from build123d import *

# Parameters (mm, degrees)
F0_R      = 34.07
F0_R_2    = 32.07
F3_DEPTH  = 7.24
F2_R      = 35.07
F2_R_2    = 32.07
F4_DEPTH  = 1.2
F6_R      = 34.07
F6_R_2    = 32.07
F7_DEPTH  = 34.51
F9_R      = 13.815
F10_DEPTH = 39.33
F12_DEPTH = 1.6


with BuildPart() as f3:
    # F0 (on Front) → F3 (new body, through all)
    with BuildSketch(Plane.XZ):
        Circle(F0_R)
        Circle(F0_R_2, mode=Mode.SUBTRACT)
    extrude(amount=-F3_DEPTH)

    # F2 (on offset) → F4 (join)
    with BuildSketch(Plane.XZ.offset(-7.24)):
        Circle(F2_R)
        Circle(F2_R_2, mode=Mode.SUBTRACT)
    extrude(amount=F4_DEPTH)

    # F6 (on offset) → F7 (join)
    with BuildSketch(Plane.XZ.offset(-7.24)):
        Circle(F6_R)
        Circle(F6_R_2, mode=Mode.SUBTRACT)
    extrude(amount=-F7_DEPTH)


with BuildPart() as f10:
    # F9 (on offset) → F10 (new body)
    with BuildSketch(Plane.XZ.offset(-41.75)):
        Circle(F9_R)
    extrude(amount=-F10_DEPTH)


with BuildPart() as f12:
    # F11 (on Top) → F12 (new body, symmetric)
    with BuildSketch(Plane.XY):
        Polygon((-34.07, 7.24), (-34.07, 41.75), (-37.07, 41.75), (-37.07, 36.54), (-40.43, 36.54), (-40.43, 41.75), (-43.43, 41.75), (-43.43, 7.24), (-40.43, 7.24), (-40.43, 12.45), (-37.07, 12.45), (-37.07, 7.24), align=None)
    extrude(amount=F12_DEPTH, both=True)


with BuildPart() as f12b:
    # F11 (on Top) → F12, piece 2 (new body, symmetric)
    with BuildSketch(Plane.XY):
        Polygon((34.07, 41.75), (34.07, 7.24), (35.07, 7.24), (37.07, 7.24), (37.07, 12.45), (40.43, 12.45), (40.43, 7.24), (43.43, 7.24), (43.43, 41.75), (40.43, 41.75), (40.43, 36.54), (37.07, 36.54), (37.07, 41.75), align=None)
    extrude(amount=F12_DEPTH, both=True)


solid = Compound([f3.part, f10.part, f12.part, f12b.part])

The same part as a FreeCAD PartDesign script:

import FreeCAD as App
import Part
import Sketcher


def add_polygon(sketch, points):
    """Adds a closed chain of lines whose ends are joined by coincident constraints."""
    first, n = sketch.GeometryCount, len(points)
    for a, b in zip(points, points[1:] + points[:1]):
        sketch.addGeometry(Part.LineSegment(App.Vector(*a, 0), App.Vector(*b, 0)), False)
    for i in range(n):
        sketch.addConstraint(Sketcher.Constraint("Coincident", first + i, 2, first + (i + 1) % n, 1))

doc = App.newDocument("Part")
params = doc.addObject("Spreadsheet::Sheet", "Params")
for row, (alias, value) in enumerate([
    ("sketch1_diameter", "68.14 mm"),
    ("sketch1_diameter2", "64.14 mm"),
    ("pad1_length", "7.24 mm"),
    ("sketch2_diameter", "70.14 mm"),
    ("sketch2_diameter2", "64.14 mm"),
    ("pad2_length", "1.2 mm"),
    ("sketch3_diameter", "68.14 mm"),
    ("sketch3_diameter2", "64.14 mm"),
    ("pad3_length", "34.51 mm"),
    ("sketch4_diameter", "27.63 mm"),
    ("pad4_length", "39.33 mm"),
    ("sketch5_width", "3 mm"),
    ("sketch5_width2", "3.36 mm"),
    ("sketch5_height", "34.51 mm"),
    ("sketch5_height2", "5.21 mm"),
    ("pad5_length", "3.2 mm"),
    ("sketch6_width", "3 mm"),
    ("sketch6_width2", "3.36 mm"),
    ("sketch6_height", "34.51 mm"),
    ("sketch6_height2", "5.21 mm"),
    ("pad6_length", "3.2 mm"),
], start=1):
    params.set(f"A{row}", alias)
    params.set(f"B{row}", "=" + value)
    params.setAlias(f"B{row}", alias)

body = doc.addObject("PartDesign::Body", "Body")

sketch1 = doc.addObject("Sketcher::SketchObject", "Sketch")
body.addObject(sketch1)
sketch1.AttachmentSupport = (doc.XZ_Plane, [""])
sketch1.MapMode = "FlatFace"
sketch1.addGeometry(Part.Circle(App.Vector(0, 0, 0), App.Vector(0, 0, 1), 34), False)
sketch1.addGeometry(Part.Circle(App.Vector(0, 0, 0), App.Vector(0, 0, 1), 32), False)
sketch1.addConstraint(Sketcher.Constraint("Coincident", 0, 3, -1, 1))
sketch1.addConstraint(Sketcher.Constraint("Coincident", 1, 3, -1, 1))
sketch1.addConstraint(Sketcher.Constraint("Diameter", 0, 68.14))
sketch1.addConstraint(Sketcher.Constraint("Diameter", 1, 64.14))
sketch1.setExpression("Constraints[2]", "Params.sketch1_diameter")
sketch1.setExpression("Constraints[3]", "Params.sketch1_diameter2")
pad1 = doc.addObject("PartDesign::Pad", "Pad")
body.addObject(pad1)
pad1.Profile = sketch1
pad1.setExpression("Length", "Params.pad1_length")
pad1.Reversed = True

sketch2 = doc.addObject("Sketcher::SketchObject", "Sketch001")
body.addObject(sketch2)
sketch2.AttachmentSupport = (doc.XZ_Plane, [""])
sketch2.MapMode = "FlatFace"
sketch2.AttachmentOffset = App.Placement(App.Vector(0, 0, -7.24), App.Rotation())
sketch2.addGeometry(Part.Circle(App.Vector(0, 0, 0), App.Vector(0, 0, 1), 35), False)
sketch2.addGeometry(Part.Circle(App.Vector(0, 0, 0), App.Vector(0, 0, 1), 32), False)
sketch2.addConstraint(Sketcher.Constraint("Coincident", 0, 3, -1, 1))
sketch2.addConstraint(Sketcher.Constraint("Coincident", 1, 3, -1, 1))
sketch2.addConstraint(Sketcher.Constraint("Diameter", 0, 70.14))
sketch2.addConstraint(Sketcher.Constraint("Diameter", 1, 64.14))
sketch2.setExpression("Constraints[2]", "Params.sketch2_diameter")
sketch2.setExpression("Constraints[3]", "Params.sketch2_diameter2")
pad2 = doc.addObject("PartDesign::Pad", "Pad001")
body.addObject(pad2)
pad2.Profile = sketch2
pad2.setExpression("Length", "Params.pad2_length")

sketch3 = doc.addObject("Sketcher::SketchObject", "Sketch002")
body.addObject(sketch3)
sketch3.AttachmentSupport = (doc.XZ_Plane, [""])
sketch3.MapMode = "FlatFace"
sketch3.AttachmentOffset = App.Placement(App.Vector(0, 0, -7.24), App.Rotation())
sketch3.addGeometry(Part.Circle(App.Vector(0, 0, 0), App.Vector(0, 0, 1), 34), False)
sketch3.addGeometry(Part.Circle(App.Vector(0, 0, 0), App.Vector(0, 0, 1), 32), False)
sketch3.addConstraint(Sketcher.Constraint("Coincident", 0, 3, -1, 1))
sketch3.addConstraint(Sketcher.Constraint("Coincident", 1, 3, -1, 1))
sketch3.addConstraint(Sketcher.Constraint("Diameter", 0, 68.14))
sketch3.addConstraint(Sketcher.Constraint("Diameter", 1, 64.14))
sketch3.setExpression("Constraints[2]", "Params.sketch3_diameter")
sketch3.setExpression("Constraints[3]", "Params.sketch3_diameter2")
pad3 = doc.addObject("PartDesign::Pad", "Pad002")
body.addObject(pad3)
pad3.Profile = sketch3
pad3.setExpression("Length", "Params.pad3_length")
pad3.Reversed = True
body2 = doc.addObject("PartDesign::Body", "Body001")

sketch4 = doc.addObject("Sketcher::SketchObject", "Sketch003")
body2.addObject(sketch4)
sketch4.AttachmentSupport = (doc.getObject("XZ_Plane001"), [""])
sketch4.MapMode = "FlatFace"
sketch4.AttachmentOffset = App.Placement(App.Vector(0, 0, -41.75), App.Rotation())
sketch4.addGeometry(Part.Circle(App.Vector(0, 0, 0), App.Vector(0, 0, 1), 14), False)
sketch4.addConstraint(Sketcher.Constraint("Coincident", 0, 3, -1, 1))
sketch4.addConstraint(Sketcher.Constraint("Diameter", 0, 27.63))
sketch4.setExpression("Constraints[1]", "Params.sketch4_diameter")
pad4 = doc.addObject("PartDesign::Pad", "Pad003")
body2.addObject(pad4)
pad4.Profile = sketch4
pad4.setExpression("Length", "Params.pad4_length")
pad4.Reversed = True
body3 = doc.addObject("PartDesign::Body", "Body002")

sketch5 = doc.addObject("Sketcher::SketchObject", "Sketch004")
body3.addObject(sketch5)
sketch5.AttachmentSupport = (doc.getObject("XY_Plane002"), [""])
sketch5.MapMode = "FlatFace"
add_polygon(sketch5, [(-34.1, 7.2), (-34.1, 41.8), (-37.1, 41.8), (-37.1, 36.5), (-40.4, 36.5), (-40.4, 41.8), (-43.4, 41.8), (-43.4, 7.2), (-40.4, 7.2), (-40.4, 12.4), (-37.1, 12.4), (-37.1, 7.2)])
sketch5.addConstraint(Sketcher.Constraint("Vertical", 0))
sketch5.addConstraint(Sketcher.Constraint("Horizontal", 1))
sketch5.addConstraint(Sketcher.Constraint("Vertical", 2))
sketch5.addConstraint(Sketcher.Constraint("Horizontal", 3))
sketch5.addConstraint(Sketcher.Constraint("Vertical", 4))
sketch5.addConstraint(Sketcher.Constraint("Horizontal", 5))
sketch5.addConstraint(Sketcher.Constraint("Vertical", 6))
sketch5.addConstraint(Sketcher.Constraint("Horizontal", 7))
sketch5.addConstraint(Sketcher.Constraint("Vertical", 8))
sketch5.addConstraint(Sketcher.Constraint("Horizontal", 9))
sketch5.addConstraint(Sketcher.Constraint("Vertical", 10))
sketch5.addConstraint(Sketcher.Constraint("Horizontal", 11))
sketch5.addConstraint(Sketcher.Constraint("Horizontal", 1, 2, 4, 2))
sketch5.addConstraint(Sketcher.Constraint("Horizontal", 7, 2, 10, 2))
sketch5.addConstraint(Sketcher.Constraint("Vertical", 4, 2, 7, 2))
sketch5.addConstraint(Sketcher.Constraint("Vertical", 2, 2, 9, 2))
sketch5.addConstraint(Sketcher.Constraint("Equal", 1, 5))
sketch5.addConstraint(Sketcher.Constraint("Equal", 4, 8))
sketch5.addConstraint(Sketcher.Constraint("DistanceX", 1, 2, 1, 1, 3.0))
sketch5.addConstraint(Sketcher.Constraint("DistanceX", 3, 2, 3, 1, 3.36))
sketch5.addConstraint(Sketcher.Constraint("DistanceY", 0, 1, 0, 2, 34.51))
sketch5.addConstraint(Sketcher.Constraint("DistanceY", 2, 2, 2, 1, 5.21))
sketch5.addConstraint(Sketcher.Constraint("DistanceX", 0, 2, -1, 1, 34.07))
sketch5.addConstraint(Sketcher.Constraint("DistanceY", -1, 1, 0, 2, 41.75))
sketch5.setExpression("Constraints[30]", "Params.sketch5_width")
sketch5.setExpression("Constraints[31]", "Params.sketch5_width2")
sketch5.setExpression("Constraints[32]", "Params.sketch5_height")
sketch5.setExpression("Constraints[33]", "Params.sketch5_height2")
pad5 = doc.addObject("PartDesign::Pad", "Pad004")
body3.addObject(pad5)
pad5.Profile = sketch5
pad5.setExpression("Length", "Params.pad5_length")
pad5.Midplane = True
body4 = doc.addObject("PartDesign::Body", "Body003")

sketch6 = doc.addObject("Sketcher::SketchObject", "Sketch005")
body4.addObject(sketch6)
sketch6.AttachmentSupport = (doc.getObject("XY_Plane003"), [""])
sketch6.MapMode = "FlatFace"
add_polygon(sketch6, [(34.1, 41.8), (34.1, 7.2), (37.1, 7.2), (37.1, 12.4), (40.4, 12.4), (40.4, 7.2), (43.4, 7.2), (43.4, 41.8), (40.4, 41.8), (40.4, 36.5), (37.1, 36.5), (37.1, 41.8)])
sketch6.addConstraint(Sketcher.Constraint("Vertical", 0))
sketch6.addConstraint(Sketcher.Constraint("Horizontal", 1))
sketch6.addConstraint(Sketcher.Constraint("Vertical", 2))
sketch6.addConstraint(Sketcher.Constraint("Horizontal", 3))
sketch6.addConstraint(Sketcher.Constraint("Vertical", 4))
sketch6.addConstraint(Sketcher.Constraint("Horizontal", 5))
sketch6.addConstraint(Sketcher.Constraint("Vertical", 6))
sketch6.addConstraint(Sketcher.Constraint("Horizontal", 7))
sketch6.addConstraint(Sketcher.Constraint("Vertical", 8))
sketch6.addConstraint(Sketcher.Constraint("Horizontal", 9))
sketch6.addConstraint(Sketcher.Constraint("Vertical", 10))
sketch6.addConstraint(Sketcher.Constraint("Horizontal", 11))
sketch6.addConstraint(Sketcher.Constraint("Horizontal", 1, 2, 4, 2))
sketch6.addConstraint(Sketcher.Constraint("Horizontal", 7, 2, 10, 2))
sketch6.addConstraint(Sketcher.Constraint("Vertical", 4, 2, 7, 2))
sketch6.addConstraint(Sketcher.Constraint("Vertical", 2, 2, 9, 2))
sketch6.addConstraint(Sketcher.Constraint("Equal", 1, 5))
sketch6.addConstraint(Sketcher.Constraint("Equal", 4, 8))
sketch6.addConstraint(Sketcher.Constraint("DistanceX", 1, 1, 1, 2, 3.0))
sketch6.addConstraint(Sketcher.Constraint("DistanceX", 3, 1, 3, 2, 3.36))
sketch6.addConstraint(Sketcher.Constraint("DistanceY", 0, 2, 0, 1, 34.51))
sketch6.addConstraint(Sketcher.Constraint("DistanceY", 2, 1, 2, 2, 5.21))
sketch6.addConstraint(Sketcher.Constraint("DistanceX", -1, 1, 0, 2, 34.07))
sketch6.addConstraint(Sketcher.Constraint("DistanceY", -1, 1, 0, 2, 7.24))
sketch6.setExpression("Constraints[30]", "Params.sketch6_width")
sketch6.setExpression("Constraints[31]", "Params.sketch6_width2")
sketch6.setExpression("Constraints[32]", "Params.sketch6_height")
sketch6.setExpression("Constraints[33]", "Params.sketch6_height2")
pad6 = doc.addObject("PartDesign::Pad", "Pad005")
body4.addObject(pad6)
pad6.Profile = sketch6
pad6.setExpression("Length", "Params.pad6_length")
pad6.Midplane = True

doc.recompute()
